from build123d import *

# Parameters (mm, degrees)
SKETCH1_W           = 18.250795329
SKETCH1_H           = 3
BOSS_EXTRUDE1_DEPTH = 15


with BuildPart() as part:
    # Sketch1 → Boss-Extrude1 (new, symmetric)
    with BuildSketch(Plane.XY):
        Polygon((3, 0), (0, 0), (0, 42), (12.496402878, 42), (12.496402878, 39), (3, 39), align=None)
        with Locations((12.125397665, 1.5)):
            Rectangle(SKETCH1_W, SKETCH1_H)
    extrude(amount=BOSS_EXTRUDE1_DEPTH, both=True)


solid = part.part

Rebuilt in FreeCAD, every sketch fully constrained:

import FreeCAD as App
import Part
import Sketcher
from FreeCAD import Vector


def add_polygon(sketch, points):
    """Adds a closed chain of lines whose ends are joined by coincident constraints."""
    first, n = sketch.GeometryCount, len(points)
    for a, b in zip(points, points[1:] + points[:1]):
        sketch.addGeometry(Part.LineSegment(App.Vector(*a, 0), App.Vector(*b, 0)), False)
    for i in range(n):
        sketch.addConstraint(Sketcher.Constraint("Coincident", first + i, 2, first + (i + 1) % n, 1))

doc = App.newDocument("Part")
body = doc.addObject("PartDesign::Body", "Body")

sketch1 = body.newObject("Sketcher::SketchObject", "Sketch")
sketch1.AttachmentSupport = (doc.getObject("XY_Plane"), [""])
sketch1.MapMode = "FlatFace"
add_polygon(sketch1, [(0, 0), (21.3, 0), (21.3, 3), (3, 3), (3, 39), (12.5, 39), (12.5, 42), (0, 42)])
sketch1.addConstraint([
    Sketcher.Constraint("Horizontal", 0),
    Sketcher.Constraint("Vertical", 1),
    Sketcher.Constraint("Horizontal", 2),
    Sketcher.Constraint("Vertical", 3),
    Sketcher.Constraint("Horizontal", 4),
    Sketcher.Constraint("Vertical", 5),
    Sketcher.Constraint("Horizontal", 6),
    Sketcher.Constraint("Vertical", 7),
    Sketcher.Constraint("Coincident", 7, 2, -1, 1),
    Sketcher.Constraint("Equal", 1, 5),
    Sketcher.Constraint("DistanceY", 1, 1, 1, 2, 3.0),
    Sketcher.Constraint("DistanceY", 3, 1, 3, 2, 36.0),
    Sketcher.Constraint("DistanceX", -1, 1, 2, 2, 3.0),
    Sketcher.Constraint("DistanceX", 0, 1, 0, 2, 21.250795),
    Sketcher.Constraint("DistanceX", 4, 1, 4, 2, 9.496403),
])
pad1 = body.newObject("PartDesign::Pad", "Pad")
pad1.Profile = sketch1
pad1.Length = 30
pad1.Midplane = True

doc.recompute()
